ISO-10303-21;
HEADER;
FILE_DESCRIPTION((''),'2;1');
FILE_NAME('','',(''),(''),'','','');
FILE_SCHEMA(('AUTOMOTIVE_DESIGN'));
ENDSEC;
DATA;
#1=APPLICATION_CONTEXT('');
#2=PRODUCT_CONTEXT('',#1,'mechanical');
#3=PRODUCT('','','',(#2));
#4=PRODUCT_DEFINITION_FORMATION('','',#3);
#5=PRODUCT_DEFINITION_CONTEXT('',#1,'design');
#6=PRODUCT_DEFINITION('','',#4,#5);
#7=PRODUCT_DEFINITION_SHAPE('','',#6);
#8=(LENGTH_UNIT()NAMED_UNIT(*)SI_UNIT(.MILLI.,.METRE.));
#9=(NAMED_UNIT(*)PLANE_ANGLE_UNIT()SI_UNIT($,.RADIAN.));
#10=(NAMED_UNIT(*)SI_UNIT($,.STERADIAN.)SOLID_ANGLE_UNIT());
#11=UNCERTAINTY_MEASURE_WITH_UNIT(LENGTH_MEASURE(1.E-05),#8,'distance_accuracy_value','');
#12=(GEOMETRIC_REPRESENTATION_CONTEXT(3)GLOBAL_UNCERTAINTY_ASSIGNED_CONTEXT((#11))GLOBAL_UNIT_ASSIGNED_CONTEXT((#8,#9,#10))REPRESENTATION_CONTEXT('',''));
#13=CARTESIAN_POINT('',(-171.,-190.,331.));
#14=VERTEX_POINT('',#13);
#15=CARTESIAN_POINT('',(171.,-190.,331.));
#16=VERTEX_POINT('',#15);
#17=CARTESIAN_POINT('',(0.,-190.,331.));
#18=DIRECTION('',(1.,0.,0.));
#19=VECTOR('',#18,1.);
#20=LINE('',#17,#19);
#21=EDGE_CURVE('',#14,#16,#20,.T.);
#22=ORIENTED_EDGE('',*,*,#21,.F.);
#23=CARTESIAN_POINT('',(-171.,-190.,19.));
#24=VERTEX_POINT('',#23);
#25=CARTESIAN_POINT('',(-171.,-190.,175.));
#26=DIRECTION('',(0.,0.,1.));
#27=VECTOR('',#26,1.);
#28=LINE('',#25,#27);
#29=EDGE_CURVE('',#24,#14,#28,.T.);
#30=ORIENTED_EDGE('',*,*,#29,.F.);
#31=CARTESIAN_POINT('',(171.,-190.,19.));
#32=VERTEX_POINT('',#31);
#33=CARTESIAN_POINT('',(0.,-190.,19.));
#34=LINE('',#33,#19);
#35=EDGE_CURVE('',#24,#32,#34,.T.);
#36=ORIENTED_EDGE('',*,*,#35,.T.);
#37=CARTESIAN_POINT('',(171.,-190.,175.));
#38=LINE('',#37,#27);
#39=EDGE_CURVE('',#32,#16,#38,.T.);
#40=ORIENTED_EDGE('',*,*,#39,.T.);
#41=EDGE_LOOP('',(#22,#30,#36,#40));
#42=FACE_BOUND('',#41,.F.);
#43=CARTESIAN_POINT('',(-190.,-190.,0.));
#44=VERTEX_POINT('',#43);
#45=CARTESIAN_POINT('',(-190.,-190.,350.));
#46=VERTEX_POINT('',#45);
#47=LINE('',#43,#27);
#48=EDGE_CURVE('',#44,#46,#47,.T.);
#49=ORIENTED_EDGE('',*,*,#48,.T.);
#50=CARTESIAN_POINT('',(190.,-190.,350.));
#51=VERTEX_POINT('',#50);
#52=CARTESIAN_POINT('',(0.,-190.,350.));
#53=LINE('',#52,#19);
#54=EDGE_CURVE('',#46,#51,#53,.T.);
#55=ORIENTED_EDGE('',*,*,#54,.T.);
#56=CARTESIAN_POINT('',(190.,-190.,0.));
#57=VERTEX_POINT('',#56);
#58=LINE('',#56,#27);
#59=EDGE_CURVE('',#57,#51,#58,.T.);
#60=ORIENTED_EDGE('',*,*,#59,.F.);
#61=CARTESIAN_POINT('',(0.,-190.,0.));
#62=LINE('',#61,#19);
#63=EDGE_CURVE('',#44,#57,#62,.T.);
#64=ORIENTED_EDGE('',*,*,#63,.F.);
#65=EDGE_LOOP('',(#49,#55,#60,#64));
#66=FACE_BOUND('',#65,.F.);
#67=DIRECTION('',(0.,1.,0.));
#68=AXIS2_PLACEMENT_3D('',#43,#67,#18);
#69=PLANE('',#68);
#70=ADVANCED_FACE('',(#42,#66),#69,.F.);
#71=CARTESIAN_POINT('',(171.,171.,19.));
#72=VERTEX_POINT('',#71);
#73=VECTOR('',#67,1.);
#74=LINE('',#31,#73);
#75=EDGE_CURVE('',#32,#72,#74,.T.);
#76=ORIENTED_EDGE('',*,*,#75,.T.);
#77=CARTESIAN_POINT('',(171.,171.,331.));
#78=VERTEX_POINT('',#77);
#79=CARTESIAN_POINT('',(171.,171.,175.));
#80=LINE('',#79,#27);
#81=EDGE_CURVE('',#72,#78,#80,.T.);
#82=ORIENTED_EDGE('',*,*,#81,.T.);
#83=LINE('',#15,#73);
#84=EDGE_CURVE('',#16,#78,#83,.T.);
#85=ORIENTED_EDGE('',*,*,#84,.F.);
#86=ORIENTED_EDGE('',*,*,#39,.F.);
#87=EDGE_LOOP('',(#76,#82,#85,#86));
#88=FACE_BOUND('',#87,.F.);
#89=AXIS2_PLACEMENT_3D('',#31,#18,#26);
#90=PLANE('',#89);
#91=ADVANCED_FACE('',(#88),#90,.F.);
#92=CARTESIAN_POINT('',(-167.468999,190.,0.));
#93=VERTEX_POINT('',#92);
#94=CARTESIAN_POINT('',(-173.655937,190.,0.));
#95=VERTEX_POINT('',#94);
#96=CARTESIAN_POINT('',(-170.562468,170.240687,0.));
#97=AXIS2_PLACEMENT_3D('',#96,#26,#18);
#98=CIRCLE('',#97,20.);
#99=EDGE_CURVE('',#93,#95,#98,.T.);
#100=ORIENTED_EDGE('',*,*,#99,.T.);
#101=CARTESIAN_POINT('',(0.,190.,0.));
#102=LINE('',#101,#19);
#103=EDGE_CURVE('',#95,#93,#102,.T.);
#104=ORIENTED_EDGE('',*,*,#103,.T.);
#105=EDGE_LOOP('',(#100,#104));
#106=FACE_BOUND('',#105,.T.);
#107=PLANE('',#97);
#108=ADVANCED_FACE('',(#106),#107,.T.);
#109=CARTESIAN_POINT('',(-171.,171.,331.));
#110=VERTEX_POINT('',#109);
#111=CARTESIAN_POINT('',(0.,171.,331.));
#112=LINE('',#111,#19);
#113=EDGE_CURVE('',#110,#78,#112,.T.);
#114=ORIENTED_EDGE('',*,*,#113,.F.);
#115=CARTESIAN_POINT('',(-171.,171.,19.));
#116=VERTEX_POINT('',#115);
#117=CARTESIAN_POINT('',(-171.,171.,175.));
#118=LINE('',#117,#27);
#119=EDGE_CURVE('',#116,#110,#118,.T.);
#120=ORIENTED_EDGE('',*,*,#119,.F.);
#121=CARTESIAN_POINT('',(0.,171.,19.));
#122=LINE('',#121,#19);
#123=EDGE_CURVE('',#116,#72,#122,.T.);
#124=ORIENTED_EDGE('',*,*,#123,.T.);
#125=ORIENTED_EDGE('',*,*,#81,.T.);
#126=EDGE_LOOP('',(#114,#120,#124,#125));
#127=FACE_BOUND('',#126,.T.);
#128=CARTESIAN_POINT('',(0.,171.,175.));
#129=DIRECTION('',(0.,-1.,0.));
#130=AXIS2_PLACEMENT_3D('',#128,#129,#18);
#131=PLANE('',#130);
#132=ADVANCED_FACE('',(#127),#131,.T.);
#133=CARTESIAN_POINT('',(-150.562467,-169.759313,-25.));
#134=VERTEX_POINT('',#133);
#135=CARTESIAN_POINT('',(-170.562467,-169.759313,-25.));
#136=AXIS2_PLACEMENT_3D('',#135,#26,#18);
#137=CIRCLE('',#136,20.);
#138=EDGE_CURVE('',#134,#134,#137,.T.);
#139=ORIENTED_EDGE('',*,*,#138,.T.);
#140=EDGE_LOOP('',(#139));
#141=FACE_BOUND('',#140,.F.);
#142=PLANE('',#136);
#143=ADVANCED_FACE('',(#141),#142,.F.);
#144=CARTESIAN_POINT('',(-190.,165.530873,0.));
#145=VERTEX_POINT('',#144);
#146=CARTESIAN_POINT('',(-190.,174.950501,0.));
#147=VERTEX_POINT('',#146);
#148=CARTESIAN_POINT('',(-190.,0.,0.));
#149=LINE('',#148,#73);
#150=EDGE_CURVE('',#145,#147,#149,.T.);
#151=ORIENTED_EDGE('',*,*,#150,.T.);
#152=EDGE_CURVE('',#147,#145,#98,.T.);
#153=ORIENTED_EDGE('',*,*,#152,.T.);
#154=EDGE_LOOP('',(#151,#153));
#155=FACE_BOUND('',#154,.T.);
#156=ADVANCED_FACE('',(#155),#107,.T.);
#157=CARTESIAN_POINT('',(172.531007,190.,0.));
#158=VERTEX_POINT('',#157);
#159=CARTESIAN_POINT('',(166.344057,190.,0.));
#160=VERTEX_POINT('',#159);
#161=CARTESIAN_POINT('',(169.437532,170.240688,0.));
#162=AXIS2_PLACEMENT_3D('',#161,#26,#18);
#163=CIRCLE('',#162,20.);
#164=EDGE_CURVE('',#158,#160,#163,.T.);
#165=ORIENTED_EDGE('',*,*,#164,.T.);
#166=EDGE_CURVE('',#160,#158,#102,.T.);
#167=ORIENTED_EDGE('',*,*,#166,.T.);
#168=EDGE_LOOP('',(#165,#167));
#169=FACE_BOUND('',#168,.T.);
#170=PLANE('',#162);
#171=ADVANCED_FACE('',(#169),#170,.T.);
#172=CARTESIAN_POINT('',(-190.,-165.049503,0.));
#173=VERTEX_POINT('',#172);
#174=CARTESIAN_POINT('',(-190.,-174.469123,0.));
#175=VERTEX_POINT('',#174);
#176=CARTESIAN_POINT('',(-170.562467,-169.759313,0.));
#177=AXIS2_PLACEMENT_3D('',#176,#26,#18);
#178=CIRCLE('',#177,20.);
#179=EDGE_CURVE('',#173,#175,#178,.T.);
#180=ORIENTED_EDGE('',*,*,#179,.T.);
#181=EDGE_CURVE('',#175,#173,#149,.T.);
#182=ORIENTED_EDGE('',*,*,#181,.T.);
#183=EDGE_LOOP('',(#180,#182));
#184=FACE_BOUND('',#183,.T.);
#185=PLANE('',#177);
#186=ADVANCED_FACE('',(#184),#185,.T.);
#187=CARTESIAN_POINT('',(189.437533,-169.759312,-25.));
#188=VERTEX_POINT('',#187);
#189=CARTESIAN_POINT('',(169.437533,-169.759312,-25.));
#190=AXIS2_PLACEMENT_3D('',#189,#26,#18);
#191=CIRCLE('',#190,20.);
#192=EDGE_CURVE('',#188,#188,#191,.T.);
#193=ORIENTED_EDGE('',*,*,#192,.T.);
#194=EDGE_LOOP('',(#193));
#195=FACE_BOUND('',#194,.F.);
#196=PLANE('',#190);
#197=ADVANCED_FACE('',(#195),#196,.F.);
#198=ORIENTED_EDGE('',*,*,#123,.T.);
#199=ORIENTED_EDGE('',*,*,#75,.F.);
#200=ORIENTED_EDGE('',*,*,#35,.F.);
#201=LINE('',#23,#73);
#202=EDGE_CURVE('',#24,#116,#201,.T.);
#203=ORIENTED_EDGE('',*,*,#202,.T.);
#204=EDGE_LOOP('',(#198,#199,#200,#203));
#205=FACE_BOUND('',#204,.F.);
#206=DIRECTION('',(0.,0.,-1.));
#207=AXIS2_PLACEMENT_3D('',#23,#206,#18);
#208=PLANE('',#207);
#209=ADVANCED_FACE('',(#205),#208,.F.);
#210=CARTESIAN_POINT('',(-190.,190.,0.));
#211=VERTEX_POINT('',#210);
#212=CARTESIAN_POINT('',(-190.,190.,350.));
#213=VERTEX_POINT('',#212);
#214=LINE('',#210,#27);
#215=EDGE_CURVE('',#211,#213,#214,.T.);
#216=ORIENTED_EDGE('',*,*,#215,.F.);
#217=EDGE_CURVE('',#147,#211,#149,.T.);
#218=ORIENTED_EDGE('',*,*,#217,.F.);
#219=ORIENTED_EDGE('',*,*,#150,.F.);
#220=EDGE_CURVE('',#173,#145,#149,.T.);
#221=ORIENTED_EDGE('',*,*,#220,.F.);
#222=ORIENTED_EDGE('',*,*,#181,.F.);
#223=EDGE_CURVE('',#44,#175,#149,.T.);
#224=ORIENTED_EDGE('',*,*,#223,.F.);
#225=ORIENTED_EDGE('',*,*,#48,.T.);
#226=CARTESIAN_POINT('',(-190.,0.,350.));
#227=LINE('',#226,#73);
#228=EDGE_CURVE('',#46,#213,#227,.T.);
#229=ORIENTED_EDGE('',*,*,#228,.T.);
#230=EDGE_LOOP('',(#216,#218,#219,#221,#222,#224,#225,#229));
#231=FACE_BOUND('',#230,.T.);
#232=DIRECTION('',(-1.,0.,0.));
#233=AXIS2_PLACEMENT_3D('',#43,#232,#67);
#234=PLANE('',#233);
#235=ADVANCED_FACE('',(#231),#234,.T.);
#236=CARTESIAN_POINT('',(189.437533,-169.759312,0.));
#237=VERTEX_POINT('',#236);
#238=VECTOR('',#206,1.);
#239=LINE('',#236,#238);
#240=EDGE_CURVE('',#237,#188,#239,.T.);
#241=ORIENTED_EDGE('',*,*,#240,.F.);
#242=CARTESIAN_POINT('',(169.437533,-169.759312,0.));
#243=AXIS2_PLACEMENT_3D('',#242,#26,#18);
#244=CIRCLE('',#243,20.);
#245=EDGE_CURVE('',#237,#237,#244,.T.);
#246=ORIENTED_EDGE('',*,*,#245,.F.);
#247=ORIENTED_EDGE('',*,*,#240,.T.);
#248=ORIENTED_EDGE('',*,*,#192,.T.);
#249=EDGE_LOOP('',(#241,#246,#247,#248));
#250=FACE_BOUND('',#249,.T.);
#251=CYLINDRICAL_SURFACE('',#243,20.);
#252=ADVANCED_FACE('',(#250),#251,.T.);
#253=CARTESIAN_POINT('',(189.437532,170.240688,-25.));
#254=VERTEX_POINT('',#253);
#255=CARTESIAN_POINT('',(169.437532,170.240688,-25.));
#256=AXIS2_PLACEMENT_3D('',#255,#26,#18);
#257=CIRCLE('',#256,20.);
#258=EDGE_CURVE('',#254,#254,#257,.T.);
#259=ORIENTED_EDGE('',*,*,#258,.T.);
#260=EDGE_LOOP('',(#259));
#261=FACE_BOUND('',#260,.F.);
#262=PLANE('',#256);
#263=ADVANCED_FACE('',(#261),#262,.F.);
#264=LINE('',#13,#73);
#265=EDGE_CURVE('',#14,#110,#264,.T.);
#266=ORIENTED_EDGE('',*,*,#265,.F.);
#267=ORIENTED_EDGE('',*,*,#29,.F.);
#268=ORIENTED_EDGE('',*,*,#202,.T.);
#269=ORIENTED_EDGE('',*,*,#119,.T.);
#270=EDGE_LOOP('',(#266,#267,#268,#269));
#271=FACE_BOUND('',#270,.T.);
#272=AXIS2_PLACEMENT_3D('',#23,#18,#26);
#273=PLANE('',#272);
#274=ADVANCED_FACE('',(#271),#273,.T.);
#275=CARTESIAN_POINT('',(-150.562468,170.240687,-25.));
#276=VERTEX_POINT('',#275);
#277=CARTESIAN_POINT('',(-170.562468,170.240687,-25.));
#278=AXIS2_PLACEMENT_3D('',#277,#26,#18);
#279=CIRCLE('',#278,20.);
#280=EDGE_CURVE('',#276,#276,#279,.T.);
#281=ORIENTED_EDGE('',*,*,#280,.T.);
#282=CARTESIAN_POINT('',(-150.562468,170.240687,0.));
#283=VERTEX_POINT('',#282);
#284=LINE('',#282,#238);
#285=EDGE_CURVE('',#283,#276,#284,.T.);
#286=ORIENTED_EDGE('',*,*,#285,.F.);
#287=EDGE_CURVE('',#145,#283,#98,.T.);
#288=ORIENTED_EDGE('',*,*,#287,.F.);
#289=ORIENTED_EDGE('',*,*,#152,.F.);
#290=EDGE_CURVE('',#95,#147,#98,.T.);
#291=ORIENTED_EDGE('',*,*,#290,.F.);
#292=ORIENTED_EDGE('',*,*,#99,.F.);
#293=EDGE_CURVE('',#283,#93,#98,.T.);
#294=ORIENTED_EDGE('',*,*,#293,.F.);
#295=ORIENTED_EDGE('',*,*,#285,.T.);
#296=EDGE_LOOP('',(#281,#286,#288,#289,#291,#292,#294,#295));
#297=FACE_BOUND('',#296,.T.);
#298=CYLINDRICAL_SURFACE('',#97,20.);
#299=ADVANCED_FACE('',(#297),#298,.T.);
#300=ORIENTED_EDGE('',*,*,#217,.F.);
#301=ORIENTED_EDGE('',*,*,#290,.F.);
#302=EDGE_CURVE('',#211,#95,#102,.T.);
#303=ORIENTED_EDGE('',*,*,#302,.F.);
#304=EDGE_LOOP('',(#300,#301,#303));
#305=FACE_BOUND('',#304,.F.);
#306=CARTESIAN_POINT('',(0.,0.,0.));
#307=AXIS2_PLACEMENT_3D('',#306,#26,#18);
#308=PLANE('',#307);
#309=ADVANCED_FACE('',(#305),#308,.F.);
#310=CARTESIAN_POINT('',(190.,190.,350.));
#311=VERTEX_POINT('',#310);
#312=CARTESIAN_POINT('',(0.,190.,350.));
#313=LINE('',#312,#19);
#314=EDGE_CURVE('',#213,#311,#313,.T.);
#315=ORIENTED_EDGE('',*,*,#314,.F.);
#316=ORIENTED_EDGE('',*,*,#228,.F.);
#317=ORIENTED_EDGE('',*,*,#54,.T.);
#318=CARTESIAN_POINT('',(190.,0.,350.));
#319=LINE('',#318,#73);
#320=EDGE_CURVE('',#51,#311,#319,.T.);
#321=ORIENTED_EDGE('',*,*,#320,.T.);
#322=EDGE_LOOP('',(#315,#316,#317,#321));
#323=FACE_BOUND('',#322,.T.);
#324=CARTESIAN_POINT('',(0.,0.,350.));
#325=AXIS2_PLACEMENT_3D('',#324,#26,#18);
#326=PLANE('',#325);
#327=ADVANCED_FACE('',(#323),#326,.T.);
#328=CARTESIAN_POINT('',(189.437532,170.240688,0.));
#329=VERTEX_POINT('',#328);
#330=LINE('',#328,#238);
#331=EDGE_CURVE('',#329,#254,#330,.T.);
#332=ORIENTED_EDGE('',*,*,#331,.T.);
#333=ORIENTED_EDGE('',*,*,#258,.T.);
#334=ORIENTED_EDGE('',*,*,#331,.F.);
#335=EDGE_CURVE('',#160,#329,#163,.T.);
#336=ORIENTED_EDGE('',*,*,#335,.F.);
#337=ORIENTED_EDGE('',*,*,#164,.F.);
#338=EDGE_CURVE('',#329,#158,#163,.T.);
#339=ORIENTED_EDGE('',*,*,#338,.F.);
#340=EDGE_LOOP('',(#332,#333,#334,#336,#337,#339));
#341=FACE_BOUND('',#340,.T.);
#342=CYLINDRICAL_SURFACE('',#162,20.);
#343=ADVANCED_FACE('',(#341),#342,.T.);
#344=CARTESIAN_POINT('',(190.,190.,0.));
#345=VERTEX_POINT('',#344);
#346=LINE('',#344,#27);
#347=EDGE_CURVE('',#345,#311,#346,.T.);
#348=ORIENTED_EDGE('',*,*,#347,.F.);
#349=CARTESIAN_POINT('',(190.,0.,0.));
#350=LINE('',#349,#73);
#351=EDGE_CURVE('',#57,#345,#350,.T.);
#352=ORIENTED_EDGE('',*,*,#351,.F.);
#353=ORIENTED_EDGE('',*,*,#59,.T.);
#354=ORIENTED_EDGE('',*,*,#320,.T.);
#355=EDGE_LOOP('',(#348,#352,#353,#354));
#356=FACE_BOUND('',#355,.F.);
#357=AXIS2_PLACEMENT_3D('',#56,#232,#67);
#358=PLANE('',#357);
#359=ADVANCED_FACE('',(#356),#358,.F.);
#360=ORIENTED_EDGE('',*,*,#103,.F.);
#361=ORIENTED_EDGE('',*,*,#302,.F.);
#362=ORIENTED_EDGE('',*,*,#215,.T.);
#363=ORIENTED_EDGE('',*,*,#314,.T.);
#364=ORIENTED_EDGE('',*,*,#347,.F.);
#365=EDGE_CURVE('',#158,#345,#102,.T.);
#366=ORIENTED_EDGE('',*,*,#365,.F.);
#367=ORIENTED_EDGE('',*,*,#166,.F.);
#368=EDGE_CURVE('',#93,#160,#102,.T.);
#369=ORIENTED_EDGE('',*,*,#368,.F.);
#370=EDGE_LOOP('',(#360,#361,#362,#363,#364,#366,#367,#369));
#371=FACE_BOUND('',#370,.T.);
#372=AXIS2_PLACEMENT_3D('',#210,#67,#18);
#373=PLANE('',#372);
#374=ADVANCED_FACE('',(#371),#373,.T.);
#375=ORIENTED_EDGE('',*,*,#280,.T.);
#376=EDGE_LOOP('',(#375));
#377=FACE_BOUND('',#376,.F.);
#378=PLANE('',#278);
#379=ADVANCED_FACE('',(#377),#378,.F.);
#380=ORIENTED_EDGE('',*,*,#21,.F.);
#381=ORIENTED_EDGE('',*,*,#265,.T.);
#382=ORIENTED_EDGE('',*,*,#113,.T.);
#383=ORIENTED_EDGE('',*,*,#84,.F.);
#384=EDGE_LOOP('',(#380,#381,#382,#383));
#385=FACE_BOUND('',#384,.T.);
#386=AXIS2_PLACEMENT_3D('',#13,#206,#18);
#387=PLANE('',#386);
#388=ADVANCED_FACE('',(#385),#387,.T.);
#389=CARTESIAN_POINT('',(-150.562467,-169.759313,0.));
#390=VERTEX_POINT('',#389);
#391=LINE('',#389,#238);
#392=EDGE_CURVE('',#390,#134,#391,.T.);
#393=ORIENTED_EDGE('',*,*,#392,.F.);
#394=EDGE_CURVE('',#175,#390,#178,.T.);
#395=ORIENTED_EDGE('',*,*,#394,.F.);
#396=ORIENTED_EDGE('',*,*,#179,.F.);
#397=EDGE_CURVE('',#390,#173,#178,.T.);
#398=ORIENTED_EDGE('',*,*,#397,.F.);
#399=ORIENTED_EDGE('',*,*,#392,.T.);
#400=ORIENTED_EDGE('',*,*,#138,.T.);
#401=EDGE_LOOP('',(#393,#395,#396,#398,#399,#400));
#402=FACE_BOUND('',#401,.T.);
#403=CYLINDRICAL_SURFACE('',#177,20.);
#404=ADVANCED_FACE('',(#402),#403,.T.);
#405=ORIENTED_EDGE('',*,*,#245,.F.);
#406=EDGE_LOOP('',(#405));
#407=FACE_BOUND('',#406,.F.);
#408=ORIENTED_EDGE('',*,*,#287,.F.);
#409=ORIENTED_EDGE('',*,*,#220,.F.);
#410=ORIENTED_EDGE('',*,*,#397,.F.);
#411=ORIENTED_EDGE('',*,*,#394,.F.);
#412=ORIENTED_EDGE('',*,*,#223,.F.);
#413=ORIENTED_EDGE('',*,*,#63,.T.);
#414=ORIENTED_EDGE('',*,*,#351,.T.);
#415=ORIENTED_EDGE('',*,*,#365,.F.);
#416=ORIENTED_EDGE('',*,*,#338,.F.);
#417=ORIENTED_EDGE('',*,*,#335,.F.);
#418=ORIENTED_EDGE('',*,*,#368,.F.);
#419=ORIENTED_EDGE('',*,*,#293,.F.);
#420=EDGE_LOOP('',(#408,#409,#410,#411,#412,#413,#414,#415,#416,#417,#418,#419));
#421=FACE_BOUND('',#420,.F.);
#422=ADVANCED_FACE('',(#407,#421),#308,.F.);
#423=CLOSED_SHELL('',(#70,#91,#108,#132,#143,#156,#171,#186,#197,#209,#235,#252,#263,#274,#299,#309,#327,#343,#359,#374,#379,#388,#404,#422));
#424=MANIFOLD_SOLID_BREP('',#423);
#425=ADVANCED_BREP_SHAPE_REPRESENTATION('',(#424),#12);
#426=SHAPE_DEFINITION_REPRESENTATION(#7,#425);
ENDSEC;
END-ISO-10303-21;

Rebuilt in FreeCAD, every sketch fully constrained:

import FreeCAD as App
import Part
import Sketcher

V = App.Vector
Q = App.Units.Quantity


def add_polygon(sketch, points):
    """Adds a closed chain of lines whose ends are joined by coincident constraints."""
    first, n = sketch.GeometryCount, len(points)
    for a, b in zip(points, points[1:] + points[:1]):
        sketch.addGeometry(Part.LineSegment(App.Vector(*a, 0), App.Vector(*b, 0)), False)
    for i in range(n):
        sketch.addConstraint(Sketcher.Constraint("Coincident", first + i, 2, first + (i + 1) % n, 1))

doc = App.newDocument("Part")
body = doc.addObject("PartDesign::Body", "Body")

# Sketch on XY plane
sketch1 = body.newObject("Sketcher::SketchObject", "Sketch")
sketch1.AttachmentSupport = (doc.getObject("XY_Plane"), [""])
sketch1.MapMode = "FlatFace"
add_polygon(sketch1, [(-190, 190), (-190, -190), (190, -190), (190, 190)])  # lines 0-3
sketch1.addConstraint([
    Sketcher.Constraint("Vertical", 0),
    Sketcher.Constraint("Horizontal", 1),
    Sketcher.Constraint("Vertical", 2),
    Sketcher.Constraint("Horizontal", 3),
    Sketcher.Constraint("Symmetric", 0, 2, 2, 2, -1, 1),
    Sketcher.Constraint("Equal", 3, 0),
    Sketcher.Constraint("DistanceX", 1, 1, 1, 2, Q("380 mm")),
])
pad1 = body.newObject("PartDesign::Pad", "Pad")
pad1.Profile = sketch1
pad1.Length = 350

# Sketch on XZ plane
sketch2 = body.newObject("Sketcher::SketchObject", "Sketch001")
sketch2.AttachmentSupport = (doc.getObject("XZ_Plane"), [""])
sketch2.MapMode = "FlatFace"
sketch2.AttachmentOffset = App.Placement(V(0, 0, 190), App.Rotation())
add_polygon(sketch2, [(-171, 331), (-171, 19), (171, 19), (171, 331)])  # lines 0-3
sketch2.addConstraint([
    Sketcher.Constraint("Vertical", 0),
    Sketcher.Constraint("Horizontal", 1),
    Sketcher.Constraint("Vertical", 2),
    Sketcher.Constraint("Horizontal", 3),
    Sketcher.Constraint("DistanceX", 1, 1, 1, 2, Q("342 mm")),
    Sketcher.Constraint("DistanceY", 0, 2, 0, 1, Q("312 mm")),
    Sketcher.Constraint("DistanceX", 0, 2, -1, 1, Q("171 mm")),
    Sketcher.Constraint("DistanceY", -1, 1, 0, 2, Q("19 mm")),
])
pocket1 = body.newObject("PartDesign::Pocket", "Pocket")
pocket1.Profile = sketch2
pocket1.Length = 361

# Sketch on XY plane
sketch3 = body.newObject("Sketcher::SketchObject", "Sketch002")
sketch3.AttachmentSupport = (doc.getObject("XY_Plane"), [""])
sketch3.MapMode = "FlatFace"
sketch3.addGeometry([
    Part.Circle(V(169.437533, -169.759312, 0), V(0, 0, 1), 20),
    Part.Circle(V(169.437532, 170.240688, 0), V(0, 0, 1), 20),
    Part.Circle(V(-170.562468, 170.240687, 0), V(0, 0, 1), 20),
    Part.Circle(V(-170.562467, -169.759313, 0), V(0, 0, 1), 20),
], False)
sketch3.addConstraint([
    Sketcher.Constraint("Equal", 0, 1),
    Sketcher.Constraint("Equal", 1, 2),
    Sketcher.Constraint("Equal", 2, 3),
    Sketcher.Constraint("Horizontal", 1, 3, 2, 3),
    Sketcher.Constraint("Horizontal", 0, 3, 3, 3),
    Sketcher.Constraint("Vertical", 0, 3, 1, 3),
    Sketcher.Constraint("Vertical", 2, 3, 3, 3),
    Sketcher.Constraint("Diameter", 0, Q("40 mm")),
    Sketcher.Constraint("DistanceY", 0, 3, 1, 3, Q("340 mm")),
    Sketcher.Constraint("DistanceX", 2, 3, 1, 3, Q("340 mm")),
    Sketcher.Constraint("DistanceY", 0, 3, -1, 1, Q("169.759312 mm")),
    Sketcher.Constraint("DistanceX", -1, 1, 1, 3, Q("169.437532 mm")),
])
pad2 = body.newObject("PartDesign::Pad", "Pad001")
pad2.Profile = sketch3
pad2.Length = 25
pad2.Reversed = True

doc.recompute()
